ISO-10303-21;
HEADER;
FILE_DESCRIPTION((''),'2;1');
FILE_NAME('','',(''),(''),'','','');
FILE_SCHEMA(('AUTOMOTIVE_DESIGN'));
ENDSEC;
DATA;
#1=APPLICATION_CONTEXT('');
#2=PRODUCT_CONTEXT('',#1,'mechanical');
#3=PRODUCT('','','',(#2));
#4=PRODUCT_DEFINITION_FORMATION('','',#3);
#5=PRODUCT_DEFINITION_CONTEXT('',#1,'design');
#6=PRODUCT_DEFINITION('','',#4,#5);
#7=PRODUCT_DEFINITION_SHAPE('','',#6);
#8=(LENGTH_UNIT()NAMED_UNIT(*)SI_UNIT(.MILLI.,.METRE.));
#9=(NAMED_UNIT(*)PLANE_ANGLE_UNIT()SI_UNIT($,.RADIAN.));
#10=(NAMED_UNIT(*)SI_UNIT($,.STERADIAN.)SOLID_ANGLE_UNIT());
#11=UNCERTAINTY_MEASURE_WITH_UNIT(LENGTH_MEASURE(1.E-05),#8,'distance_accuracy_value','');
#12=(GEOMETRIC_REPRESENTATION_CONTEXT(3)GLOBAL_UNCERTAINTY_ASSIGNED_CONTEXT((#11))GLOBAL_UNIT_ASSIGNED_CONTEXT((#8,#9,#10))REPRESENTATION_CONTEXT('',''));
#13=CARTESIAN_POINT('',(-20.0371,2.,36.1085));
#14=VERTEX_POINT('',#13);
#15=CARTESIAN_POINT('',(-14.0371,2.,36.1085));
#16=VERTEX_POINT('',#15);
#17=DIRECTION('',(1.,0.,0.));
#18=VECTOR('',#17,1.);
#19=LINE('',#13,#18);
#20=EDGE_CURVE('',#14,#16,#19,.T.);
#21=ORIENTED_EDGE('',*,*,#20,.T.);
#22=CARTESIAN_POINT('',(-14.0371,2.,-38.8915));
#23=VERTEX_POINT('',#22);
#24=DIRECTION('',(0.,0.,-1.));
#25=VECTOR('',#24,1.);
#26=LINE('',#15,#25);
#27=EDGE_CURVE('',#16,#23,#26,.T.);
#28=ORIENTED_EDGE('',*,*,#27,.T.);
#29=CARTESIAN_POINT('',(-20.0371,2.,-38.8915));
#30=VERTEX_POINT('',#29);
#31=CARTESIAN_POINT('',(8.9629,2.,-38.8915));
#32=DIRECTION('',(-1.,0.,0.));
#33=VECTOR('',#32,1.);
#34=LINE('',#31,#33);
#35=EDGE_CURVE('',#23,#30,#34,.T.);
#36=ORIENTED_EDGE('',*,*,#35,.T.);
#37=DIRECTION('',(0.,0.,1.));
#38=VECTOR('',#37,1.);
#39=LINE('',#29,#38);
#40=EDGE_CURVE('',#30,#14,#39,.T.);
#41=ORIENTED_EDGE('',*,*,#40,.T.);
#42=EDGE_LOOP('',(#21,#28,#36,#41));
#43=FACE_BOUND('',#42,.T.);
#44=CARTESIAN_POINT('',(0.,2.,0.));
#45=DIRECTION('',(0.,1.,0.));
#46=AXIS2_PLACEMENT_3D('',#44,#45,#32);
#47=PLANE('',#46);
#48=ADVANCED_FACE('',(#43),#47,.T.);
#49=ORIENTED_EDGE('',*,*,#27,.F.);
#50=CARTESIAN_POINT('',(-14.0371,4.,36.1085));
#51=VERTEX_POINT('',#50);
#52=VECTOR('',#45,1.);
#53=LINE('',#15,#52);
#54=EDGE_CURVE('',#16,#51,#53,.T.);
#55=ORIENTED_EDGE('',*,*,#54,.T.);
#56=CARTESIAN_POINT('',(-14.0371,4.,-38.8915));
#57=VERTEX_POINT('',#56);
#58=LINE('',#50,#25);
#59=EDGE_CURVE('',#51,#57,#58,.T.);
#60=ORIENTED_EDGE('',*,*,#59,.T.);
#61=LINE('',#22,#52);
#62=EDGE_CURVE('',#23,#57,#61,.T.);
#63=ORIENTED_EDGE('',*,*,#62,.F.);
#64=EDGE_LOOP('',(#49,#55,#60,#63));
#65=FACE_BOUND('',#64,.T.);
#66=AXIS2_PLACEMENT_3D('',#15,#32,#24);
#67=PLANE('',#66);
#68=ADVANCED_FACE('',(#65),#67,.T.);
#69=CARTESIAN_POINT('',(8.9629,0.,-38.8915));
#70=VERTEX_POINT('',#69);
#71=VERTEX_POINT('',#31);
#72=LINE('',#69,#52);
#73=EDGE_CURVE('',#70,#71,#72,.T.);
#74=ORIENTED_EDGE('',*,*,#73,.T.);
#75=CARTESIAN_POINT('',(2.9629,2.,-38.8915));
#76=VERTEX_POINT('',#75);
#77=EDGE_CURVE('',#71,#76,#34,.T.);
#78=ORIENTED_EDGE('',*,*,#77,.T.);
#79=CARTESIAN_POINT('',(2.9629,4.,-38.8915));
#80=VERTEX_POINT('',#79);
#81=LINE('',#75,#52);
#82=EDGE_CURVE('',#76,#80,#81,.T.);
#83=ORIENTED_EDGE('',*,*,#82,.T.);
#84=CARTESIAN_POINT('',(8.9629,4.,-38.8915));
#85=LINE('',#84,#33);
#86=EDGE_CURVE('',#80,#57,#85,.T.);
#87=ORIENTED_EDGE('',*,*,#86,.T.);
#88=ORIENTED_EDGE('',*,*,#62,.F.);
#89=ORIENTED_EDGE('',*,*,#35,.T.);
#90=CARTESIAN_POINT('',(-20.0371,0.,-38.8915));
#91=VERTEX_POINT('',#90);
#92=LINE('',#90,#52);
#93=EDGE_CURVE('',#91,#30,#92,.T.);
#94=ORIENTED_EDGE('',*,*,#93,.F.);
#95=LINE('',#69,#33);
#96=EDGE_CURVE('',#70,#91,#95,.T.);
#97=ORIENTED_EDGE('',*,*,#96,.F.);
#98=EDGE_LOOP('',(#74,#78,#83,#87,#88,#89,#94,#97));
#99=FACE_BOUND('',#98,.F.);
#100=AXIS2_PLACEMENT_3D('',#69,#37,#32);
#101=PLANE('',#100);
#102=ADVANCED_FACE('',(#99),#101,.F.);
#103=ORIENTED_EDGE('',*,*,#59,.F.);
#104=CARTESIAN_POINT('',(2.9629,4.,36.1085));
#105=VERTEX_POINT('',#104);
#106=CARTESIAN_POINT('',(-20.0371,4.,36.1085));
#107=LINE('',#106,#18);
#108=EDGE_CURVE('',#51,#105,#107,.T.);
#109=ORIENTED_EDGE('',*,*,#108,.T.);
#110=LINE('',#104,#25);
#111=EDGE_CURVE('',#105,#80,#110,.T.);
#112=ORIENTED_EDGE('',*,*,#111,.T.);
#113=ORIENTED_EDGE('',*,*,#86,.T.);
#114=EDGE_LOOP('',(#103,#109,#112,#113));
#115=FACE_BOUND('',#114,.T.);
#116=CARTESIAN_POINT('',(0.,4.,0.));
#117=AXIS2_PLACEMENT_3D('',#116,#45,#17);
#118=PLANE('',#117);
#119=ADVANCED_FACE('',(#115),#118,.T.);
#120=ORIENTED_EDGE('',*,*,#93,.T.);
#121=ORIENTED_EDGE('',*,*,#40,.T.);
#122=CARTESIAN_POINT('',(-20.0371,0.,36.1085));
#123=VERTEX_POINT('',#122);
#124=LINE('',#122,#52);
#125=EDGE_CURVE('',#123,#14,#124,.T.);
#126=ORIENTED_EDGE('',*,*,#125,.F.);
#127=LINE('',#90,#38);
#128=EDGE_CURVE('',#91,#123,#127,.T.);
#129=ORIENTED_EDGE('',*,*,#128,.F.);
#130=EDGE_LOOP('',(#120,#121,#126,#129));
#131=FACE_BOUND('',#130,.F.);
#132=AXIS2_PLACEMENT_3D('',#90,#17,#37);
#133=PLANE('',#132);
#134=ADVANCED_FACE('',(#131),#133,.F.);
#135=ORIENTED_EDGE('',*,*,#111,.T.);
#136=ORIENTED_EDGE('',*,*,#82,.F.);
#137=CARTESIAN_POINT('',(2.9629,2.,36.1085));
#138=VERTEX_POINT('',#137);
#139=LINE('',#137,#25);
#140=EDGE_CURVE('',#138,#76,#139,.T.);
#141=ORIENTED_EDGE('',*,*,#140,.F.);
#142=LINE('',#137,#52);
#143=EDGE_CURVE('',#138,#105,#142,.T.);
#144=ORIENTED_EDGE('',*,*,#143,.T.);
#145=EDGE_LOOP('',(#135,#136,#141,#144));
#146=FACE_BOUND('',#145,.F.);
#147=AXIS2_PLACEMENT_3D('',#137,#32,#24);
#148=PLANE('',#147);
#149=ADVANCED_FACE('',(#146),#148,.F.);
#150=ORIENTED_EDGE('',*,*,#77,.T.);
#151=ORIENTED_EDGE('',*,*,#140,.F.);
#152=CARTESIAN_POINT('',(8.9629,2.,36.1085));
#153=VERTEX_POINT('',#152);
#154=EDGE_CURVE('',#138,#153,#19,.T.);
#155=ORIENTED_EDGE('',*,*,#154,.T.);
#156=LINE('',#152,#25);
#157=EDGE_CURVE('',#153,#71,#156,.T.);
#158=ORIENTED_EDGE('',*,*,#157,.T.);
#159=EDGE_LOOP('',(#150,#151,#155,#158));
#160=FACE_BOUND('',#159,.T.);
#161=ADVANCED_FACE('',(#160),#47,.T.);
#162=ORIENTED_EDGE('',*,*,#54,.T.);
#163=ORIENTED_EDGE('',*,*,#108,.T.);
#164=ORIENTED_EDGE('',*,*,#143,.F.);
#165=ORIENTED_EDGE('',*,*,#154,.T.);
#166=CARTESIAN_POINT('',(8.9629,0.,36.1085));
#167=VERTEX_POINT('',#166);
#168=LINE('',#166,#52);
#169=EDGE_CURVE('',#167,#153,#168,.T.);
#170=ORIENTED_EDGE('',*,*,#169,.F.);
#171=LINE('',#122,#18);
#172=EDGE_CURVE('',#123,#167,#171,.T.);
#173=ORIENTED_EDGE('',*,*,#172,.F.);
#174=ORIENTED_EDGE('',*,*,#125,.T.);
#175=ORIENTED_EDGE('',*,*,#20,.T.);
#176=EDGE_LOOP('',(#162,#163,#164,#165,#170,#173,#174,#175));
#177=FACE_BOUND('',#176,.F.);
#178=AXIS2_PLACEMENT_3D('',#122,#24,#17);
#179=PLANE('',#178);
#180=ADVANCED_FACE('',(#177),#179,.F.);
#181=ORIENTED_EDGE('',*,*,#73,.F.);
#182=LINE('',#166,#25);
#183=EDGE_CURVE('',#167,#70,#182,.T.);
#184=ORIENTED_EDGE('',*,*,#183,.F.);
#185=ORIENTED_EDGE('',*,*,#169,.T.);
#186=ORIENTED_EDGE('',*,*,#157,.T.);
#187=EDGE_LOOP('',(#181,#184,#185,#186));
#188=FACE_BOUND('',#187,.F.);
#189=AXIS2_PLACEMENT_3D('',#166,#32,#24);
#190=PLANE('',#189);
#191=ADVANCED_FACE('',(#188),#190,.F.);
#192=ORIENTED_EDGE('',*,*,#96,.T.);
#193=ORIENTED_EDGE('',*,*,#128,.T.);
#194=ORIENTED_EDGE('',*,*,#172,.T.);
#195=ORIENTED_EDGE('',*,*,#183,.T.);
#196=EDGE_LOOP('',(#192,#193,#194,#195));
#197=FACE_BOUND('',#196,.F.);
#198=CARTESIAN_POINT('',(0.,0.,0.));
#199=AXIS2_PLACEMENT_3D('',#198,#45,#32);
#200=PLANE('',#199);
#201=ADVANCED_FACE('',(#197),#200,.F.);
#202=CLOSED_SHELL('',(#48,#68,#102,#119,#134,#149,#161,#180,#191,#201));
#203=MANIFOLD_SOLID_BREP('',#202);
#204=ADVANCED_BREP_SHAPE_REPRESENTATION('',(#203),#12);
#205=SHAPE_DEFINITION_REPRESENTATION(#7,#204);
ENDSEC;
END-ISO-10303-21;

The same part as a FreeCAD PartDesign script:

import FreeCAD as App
import Part
import Sketcher
from FreeCAD import Vector
Q = App.Units.Quantity

doc = App.newDocument("Part")
body = doc.addObject("PartDesign::Body", "Body")

sketch1 = body.newObject("Sketcher::SketchObject", "Sketch")
sketch1.AttachmentSupport = (doc.getObject("XZ_Plane"), [""])
sketch1.MapMode = "FlatFace"
sketch1.addGeometry(Part.LineSegment(Vector(-20, -39, 0), Vector(-20, 36, 0)), False)
sketch1.addGeometry(Part.LineSegment(Vector(-20, 36, 0), Vector(9, 36, 0)), False)
sketch1.addGeometry(Part.LineSegment(Vector(9, 36, 0), Vector(9, -39, 0)), False)
sketch1.addGeometry(Part.LineSegment(Vector(9, -39, 0), Vector(-20, -39, 0)), False)
sketch1.addConstraint(Sketcher.Constraint("Coincident", 0, 2, 1, 1))
sketch1.addConstraint(Sketcher.Constraint("Coincident", 1, 2, 2, 1))
sketch1.addConstraint(Sketcher.Constraint("Coincident", 2, 2, 3, 1))
sketch1.addConstraint(Sketcher.Constraint("Coincident", 3, 2, 0, 1))
sketch1.addConstraint(Sketcher.Constraint("Vertical", 0))
sketch1.addConstraint(Sketcher.Constraint("Horizontal", 1))
sketch1.addConstraint(Sketcher.Constraint("Vertical", 2))
sketch1.addConstraint(Sketcher.Constraint("Horizontal", 3))
sketch1.addConstraint(Sketcher.Constraint("DistanceX", 1, 1, 1, 2, Q("29 mm")))
sketch1.addConstraint(Sketcher.Constraint("DistanceY", 0, 1, 0, 2, Q("75 mm")))
sketch1.addConstraint(Sketcher.Constraint("DistanceX", 0, 2, -1, 1, Q("20.037 mm")))
sketch1.addConstraint(Sketcher.Constraint("DistanceY", -1, 1, 0, 2, Q("36.1085 mm")))
pad1 = body.newObject("PartDesign::Pad", "Pad")
pad1.Profile = sketch1
pad1.Length = 2
pad1.Reversed = True

sketch2 = body.newObject("Sketcher::SketchObject", "Sketch001")
sketch2.AttachmentSupport = (doc.getObject("XZ_Plane"), [""])
sketch2.MapMode = "FlatFace"
sketch2.AttachmentOffset = App.Placement(Vector(0, 0, -2), App.Rotation())
sketch2.addGeometry(Part.LineSegment(Vector(-14, -39, 0), Vector(-14, 36, 0)), False)
sketch2.addGeometry(Part.LineSegment(Vector(-14, 36, 0), Vector(3, 36, 0)), False)
sketch2.addGeometry(Part.LineSegment(Vector(3, 36, 0), Vector(3, -39, 0)), False)
sketch2.addGeometry(Part.LineSegment(Vector(3, -39, 0), Vector(-14, -39, 0)), False)
sketch2.addConstraint(Sketcher.Constraint("Coincident", 0, 2, 1, 1))
sketch2.addConstraint(Sketcher.Constraint("Coincident", 1, 2, 2, 1))
sketch2.addConstraint(Sketcher.Constraint("Coincident", 2, 2, 3, 1))
sketch2.addConstraint(Sketcher.Constraint("Coincident", 3, 2, 0, 1))
sketch2.addConstraint(Sketcher.Constraint("Vertical", 0))
sketch2.addConstraint(Sketcher.Constraint("Horizontal", 1))
sketch2.addConstraint(Sketcher.Constraint("Vertical", 2))
sketch2.addConstraint(Sketcher.Constraint("Horizontal", 3))
sketch2.addConstraint(Sketcher.Constraint("DistanceX", 1, 1, 1, 2, Q("17 mm")))
sketch2.addConstraint(Sketcher.Constraint("DistanceY", 0, 1, 0, 2, Q("75 mm")))
sketch2.addConstraint(Sketcher.Constraint("DistanceX", 0, 2, -1, 1, Q("14.037 mm")))
sketch2.addConstraint(Sketcher.Constraint("DistanceY", -1, 1, 0, 2, Q("36.1085 mm")))
pad2 = body.newObject("PartDesign::Pad", "Pad001")
pad2.Profile = sketch2
pad2.Length = 2
pad2.Reversed = True

doc.recompute()
